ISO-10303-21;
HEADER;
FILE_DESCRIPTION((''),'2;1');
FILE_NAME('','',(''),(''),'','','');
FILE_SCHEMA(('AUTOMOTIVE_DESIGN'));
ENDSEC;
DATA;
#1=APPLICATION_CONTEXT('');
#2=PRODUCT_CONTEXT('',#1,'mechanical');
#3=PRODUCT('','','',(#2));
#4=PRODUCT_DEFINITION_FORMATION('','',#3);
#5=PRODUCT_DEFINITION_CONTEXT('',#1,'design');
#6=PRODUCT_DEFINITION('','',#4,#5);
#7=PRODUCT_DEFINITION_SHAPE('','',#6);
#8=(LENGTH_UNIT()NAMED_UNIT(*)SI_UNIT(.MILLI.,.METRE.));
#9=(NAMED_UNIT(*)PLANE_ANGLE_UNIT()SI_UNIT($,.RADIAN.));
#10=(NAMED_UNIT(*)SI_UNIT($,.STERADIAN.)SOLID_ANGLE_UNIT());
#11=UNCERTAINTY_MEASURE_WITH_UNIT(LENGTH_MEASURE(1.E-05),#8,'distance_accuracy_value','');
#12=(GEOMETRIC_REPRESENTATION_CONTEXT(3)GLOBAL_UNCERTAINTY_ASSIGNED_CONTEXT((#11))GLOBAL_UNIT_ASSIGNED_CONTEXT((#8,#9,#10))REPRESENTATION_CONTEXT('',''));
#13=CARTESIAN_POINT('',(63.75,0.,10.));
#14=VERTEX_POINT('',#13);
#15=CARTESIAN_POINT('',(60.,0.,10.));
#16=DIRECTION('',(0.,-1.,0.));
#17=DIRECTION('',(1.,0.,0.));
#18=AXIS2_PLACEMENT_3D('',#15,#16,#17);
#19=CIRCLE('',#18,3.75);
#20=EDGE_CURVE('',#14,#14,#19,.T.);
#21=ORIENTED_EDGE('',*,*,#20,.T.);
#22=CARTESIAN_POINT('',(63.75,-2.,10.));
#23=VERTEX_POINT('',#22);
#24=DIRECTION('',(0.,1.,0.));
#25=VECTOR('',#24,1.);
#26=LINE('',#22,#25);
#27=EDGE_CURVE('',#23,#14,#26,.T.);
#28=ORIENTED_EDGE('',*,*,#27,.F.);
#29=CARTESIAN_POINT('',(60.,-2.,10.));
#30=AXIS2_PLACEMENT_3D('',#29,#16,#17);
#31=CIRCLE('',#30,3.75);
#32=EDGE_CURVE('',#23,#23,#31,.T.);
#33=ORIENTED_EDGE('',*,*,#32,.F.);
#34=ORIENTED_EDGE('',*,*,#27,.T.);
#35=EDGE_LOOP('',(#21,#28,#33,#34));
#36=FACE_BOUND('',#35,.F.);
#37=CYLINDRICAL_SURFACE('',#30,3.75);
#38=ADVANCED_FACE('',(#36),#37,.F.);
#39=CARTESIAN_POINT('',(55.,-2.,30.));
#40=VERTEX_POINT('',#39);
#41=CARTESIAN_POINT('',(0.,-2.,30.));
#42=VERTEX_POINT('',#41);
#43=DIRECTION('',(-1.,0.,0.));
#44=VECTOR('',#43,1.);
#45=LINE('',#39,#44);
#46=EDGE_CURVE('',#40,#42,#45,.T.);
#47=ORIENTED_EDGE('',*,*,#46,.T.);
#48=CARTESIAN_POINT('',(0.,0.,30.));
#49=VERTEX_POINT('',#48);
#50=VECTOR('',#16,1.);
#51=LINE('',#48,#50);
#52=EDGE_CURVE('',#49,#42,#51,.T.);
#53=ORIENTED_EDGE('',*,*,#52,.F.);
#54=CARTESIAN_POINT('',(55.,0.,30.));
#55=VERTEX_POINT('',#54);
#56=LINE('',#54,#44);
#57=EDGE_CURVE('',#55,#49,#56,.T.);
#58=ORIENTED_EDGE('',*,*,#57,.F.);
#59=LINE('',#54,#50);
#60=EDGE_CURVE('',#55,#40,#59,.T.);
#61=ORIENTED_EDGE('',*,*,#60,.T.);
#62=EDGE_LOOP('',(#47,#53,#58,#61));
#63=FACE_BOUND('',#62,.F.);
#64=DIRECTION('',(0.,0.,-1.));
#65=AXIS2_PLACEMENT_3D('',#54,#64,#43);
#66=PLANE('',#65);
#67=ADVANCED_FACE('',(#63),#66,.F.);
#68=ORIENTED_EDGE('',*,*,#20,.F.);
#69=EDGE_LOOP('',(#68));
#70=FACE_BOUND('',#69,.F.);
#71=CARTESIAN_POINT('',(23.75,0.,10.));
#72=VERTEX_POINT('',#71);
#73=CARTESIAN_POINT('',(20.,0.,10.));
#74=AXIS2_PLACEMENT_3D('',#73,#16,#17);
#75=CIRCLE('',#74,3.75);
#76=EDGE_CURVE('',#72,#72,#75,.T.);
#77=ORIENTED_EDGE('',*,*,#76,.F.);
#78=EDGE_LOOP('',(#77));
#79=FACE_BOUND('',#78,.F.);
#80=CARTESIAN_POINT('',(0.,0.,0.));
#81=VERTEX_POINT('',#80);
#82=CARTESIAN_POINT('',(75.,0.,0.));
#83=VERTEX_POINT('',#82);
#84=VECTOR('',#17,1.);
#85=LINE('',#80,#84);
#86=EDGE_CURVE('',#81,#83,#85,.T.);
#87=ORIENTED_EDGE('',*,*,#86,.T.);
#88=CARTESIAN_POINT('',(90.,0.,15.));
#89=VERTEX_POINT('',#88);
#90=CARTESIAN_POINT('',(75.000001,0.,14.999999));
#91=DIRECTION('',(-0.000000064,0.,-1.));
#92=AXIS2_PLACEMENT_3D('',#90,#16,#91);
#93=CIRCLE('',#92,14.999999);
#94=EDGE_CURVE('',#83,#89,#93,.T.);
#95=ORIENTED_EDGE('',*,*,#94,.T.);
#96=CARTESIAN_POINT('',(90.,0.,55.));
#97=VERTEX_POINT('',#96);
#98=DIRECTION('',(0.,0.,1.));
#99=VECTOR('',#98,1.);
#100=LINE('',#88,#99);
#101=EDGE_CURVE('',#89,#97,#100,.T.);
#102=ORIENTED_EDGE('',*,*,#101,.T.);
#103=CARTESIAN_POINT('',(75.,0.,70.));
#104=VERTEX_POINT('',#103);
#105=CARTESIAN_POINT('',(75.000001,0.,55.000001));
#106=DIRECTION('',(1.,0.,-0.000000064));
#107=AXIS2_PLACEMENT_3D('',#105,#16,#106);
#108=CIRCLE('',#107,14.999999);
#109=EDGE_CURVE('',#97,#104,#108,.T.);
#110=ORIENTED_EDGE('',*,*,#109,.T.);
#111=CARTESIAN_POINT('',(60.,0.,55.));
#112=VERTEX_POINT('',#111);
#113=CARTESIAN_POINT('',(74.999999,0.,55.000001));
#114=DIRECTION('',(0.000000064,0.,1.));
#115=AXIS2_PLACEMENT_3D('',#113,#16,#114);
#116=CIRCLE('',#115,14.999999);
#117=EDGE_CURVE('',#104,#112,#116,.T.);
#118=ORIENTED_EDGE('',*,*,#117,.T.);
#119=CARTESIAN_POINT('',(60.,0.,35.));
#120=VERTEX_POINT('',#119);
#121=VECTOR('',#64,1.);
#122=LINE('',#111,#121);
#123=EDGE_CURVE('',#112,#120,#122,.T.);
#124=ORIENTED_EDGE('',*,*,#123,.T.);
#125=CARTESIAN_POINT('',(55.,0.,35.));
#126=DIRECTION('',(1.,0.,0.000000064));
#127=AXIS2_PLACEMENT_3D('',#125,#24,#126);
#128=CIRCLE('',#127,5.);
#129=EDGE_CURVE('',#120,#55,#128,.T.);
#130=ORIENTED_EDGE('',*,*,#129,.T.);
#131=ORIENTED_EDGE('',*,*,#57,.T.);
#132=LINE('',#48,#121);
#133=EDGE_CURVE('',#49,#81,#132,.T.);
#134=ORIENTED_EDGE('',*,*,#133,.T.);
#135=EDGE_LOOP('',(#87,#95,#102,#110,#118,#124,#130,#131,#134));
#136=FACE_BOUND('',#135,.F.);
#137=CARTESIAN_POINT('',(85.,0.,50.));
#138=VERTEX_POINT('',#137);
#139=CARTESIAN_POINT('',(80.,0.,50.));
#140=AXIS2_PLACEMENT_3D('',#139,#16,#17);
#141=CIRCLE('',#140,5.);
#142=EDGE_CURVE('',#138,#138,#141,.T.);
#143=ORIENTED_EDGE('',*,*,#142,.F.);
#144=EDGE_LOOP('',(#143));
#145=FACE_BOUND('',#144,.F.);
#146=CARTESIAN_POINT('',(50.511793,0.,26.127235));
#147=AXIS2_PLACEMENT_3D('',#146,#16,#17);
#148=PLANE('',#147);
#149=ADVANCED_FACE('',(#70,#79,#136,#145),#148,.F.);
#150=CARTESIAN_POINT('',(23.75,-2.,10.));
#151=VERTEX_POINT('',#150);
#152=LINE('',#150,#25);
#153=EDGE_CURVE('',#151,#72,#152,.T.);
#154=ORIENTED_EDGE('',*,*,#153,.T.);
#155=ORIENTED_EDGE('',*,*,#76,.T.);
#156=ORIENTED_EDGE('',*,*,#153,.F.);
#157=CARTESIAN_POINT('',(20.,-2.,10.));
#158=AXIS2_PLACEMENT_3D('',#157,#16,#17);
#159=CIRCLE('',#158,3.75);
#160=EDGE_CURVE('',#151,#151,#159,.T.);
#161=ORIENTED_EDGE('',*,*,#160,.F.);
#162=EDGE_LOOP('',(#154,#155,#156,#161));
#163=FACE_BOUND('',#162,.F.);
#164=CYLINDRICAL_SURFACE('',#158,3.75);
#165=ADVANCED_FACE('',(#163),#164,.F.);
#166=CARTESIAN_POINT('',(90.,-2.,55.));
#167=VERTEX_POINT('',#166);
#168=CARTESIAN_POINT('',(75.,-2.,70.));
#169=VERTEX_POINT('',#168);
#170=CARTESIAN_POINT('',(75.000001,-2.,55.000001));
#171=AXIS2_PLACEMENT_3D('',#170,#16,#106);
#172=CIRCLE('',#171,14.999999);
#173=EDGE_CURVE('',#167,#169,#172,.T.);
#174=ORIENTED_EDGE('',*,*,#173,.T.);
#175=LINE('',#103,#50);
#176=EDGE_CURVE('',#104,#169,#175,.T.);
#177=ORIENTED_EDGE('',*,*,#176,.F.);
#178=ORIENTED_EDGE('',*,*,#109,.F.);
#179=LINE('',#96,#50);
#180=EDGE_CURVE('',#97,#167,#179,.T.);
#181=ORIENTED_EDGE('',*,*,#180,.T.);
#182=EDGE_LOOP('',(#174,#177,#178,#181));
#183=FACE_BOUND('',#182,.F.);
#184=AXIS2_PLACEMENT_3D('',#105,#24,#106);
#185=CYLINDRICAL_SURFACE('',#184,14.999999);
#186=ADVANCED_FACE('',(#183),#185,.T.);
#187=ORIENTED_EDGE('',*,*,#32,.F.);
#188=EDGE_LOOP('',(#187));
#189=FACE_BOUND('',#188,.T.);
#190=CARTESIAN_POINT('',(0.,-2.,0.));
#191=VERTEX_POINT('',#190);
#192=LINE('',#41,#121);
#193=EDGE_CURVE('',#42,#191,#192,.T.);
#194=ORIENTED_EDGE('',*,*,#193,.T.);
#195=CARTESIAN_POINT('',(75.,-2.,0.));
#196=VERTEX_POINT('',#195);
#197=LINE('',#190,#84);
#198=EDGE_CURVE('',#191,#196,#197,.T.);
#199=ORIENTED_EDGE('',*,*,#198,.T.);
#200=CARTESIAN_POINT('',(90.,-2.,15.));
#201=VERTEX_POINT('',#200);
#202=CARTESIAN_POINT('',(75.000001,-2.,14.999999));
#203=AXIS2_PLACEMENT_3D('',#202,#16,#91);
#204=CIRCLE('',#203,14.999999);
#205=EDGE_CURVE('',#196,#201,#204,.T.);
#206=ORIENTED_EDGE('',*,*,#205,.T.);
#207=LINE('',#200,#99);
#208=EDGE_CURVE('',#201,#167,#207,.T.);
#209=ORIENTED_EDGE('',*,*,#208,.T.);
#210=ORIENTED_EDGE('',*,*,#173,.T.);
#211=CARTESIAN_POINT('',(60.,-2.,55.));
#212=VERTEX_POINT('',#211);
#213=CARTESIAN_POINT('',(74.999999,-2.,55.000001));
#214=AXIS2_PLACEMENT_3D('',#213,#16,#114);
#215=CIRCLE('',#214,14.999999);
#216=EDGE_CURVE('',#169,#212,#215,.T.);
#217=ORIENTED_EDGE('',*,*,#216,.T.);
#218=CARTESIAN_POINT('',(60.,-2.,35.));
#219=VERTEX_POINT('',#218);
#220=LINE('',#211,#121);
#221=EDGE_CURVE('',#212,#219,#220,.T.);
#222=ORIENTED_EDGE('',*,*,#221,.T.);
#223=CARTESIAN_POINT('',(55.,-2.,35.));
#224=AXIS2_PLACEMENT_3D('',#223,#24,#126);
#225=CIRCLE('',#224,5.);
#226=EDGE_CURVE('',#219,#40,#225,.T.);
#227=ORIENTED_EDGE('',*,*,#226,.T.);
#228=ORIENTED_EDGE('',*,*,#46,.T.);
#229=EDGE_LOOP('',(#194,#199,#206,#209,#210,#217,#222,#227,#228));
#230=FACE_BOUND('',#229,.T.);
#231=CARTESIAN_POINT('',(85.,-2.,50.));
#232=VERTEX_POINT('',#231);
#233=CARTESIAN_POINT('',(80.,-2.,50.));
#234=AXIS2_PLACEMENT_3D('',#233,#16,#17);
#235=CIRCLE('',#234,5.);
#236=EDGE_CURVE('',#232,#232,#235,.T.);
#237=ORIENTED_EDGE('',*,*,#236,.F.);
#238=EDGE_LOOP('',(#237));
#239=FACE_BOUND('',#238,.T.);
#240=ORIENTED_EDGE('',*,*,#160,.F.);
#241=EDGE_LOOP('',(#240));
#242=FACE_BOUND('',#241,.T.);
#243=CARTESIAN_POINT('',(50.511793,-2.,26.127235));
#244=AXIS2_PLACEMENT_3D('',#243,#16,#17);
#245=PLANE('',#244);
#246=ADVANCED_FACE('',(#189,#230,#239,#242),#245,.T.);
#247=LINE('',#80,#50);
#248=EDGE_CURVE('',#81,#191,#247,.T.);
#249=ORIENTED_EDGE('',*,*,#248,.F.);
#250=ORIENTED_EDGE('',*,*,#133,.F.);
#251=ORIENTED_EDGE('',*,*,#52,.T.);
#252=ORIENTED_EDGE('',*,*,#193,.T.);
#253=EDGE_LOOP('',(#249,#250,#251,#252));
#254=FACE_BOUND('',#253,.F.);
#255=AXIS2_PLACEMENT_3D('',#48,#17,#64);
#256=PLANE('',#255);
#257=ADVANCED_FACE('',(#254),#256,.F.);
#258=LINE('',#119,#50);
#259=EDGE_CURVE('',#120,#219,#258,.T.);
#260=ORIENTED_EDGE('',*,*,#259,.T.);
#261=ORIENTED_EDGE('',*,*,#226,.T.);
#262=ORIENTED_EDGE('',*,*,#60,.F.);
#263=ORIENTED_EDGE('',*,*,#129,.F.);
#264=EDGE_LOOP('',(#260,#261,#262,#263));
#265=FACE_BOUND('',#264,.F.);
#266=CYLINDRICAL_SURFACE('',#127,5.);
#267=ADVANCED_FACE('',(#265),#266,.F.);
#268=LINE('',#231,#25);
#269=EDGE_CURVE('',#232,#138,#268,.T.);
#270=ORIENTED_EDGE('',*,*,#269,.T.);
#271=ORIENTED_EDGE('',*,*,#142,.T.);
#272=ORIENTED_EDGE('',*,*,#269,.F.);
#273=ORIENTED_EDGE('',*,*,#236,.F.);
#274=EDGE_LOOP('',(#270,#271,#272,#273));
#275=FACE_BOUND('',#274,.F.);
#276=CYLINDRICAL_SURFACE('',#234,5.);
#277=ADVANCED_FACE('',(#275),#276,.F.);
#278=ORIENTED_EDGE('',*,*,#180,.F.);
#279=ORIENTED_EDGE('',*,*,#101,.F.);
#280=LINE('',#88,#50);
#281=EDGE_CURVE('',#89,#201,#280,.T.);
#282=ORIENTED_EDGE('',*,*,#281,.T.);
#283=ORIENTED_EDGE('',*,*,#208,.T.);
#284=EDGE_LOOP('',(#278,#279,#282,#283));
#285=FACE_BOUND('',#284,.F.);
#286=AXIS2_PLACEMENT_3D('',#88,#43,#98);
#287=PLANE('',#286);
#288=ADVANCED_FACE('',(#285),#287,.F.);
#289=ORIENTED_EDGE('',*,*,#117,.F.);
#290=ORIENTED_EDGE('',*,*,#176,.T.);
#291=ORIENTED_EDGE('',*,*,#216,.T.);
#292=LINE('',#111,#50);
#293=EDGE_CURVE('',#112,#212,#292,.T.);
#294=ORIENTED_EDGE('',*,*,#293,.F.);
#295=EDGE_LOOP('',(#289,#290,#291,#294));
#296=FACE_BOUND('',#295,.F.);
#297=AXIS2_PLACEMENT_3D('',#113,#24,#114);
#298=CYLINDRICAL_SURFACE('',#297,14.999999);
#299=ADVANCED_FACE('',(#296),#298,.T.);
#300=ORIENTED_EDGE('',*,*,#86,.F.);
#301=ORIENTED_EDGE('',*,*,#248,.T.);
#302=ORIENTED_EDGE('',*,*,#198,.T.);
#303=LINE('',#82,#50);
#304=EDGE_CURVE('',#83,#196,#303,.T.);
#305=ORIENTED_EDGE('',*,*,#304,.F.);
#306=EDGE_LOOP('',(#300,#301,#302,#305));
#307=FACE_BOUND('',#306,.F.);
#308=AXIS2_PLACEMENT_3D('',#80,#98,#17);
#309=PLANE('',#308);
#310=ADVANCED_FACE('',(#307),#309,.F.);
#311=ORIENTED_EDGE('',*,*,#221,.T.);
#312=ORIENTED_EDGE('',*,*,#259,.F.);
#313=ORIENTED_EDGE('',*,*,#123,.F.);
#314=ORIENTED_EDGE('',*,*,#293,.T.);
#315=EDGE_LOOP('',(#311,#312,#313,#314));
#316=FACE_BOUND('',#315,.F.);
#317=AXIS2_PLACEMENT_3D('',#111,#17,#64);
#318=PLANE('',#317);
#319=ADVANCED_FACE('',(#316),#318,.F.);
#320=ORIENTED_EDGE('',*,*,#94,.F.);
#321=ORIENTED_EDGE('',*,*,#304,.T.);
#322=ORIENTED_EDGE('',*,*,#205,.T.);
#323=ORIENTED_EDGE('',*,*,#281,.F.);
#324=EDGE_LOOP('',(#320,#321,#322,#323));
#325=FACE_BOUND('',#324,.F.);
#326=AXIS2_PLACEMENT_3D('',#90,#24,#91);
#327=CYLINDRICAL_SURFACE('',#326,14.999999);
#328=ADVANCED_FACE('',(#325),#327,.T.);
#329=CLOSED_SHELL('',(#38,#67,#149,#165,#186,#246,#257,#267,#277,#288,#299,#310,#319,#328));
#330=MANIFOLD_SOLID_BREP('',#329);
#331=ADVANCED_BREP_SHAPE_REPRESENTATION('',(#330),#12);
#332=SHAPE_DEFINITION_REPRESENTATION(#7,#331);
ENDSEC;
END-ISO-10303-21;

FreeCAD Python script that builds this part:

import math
import FreeCAD as App
import Part
import Sketcher

doc = App.newDocument("Part")
body = doc.addObject("PartDesign::Body", "Body")

sketch1 = body.newObject("Sketcher::SketchObject", "Sketch")
sketch1.AttachmentSupport = (doc.getObject("XZ_Plane"), [""])
sketch1.MapMode = "FlatFace"
sketch1.addGeometry(Part.LineSegment(App.Vector(0, 30, 0), App.Vector(0, 0, 0)), False)
sketch1.addGeometry(Part.LineSegment(App.Vector(0, 0, 0), App.Vector(75, 0, 0)), False)
sketch1.addGeometry(Part.ArcOfCircle(Part.Circle(App.Vector(75.000001, 14.999999, 0), App.Vector(0, 0, 1), 14.999999), math.radians(-90.000004), math.radians(0.000004)), False)
sketch1.addGeometry(Part.LineSegment(App.Vector(90, 15, 0), App.Vector(90, 55, 0)), False)
sketch1.addGeometry(Part.ArcOfCircle(Part.Circle(App.Vector(75.000001, 55.000001, 0), App.Vector(0, 0, 1), 14.999999), math.radians(-0.000004), math.radians(90.000004)), False)
sketch1.addGeometry(Part.ArcOfCircle(Part.Circle(App.Vector(74.999999, 55.000001, 0), App.Vector(0, 0, 1), 14.999999), math.radians(89.999996), math.radians(180.000004)), False)
sketch1.addGeometry(Part.LineSegment(App.Vector(60, 55, 0), App.Vector(60, 35, 0)), False)
sketch1.addGeometry(Part.ArcOfCircle(Part.Circle(App.Vector(55, 35, 0), App.Vector(0, 0, 1), 5), math.radians(-90.000004), math.radians(0.000004)), False)
sketch1.addGeometry(Part.LineSegment(App.Vector(55, 30, 0), App.Vector(0, 30, 0)), False)
sketch1.addConstraint(Sketcher.Constraint("Coincident", 0, 2, 1, 1))
sketch1.addConstraint(Sketcher.Constraint("Tangent", 1, 2, 2, 1))
sketch1.addConstraint(Sketcher.Constraint("Tangent", 2, 2, 3, 1))
sketch1.addConstraint(Sketcher.Constraint("Tangent", 3, 2, 4, 1))
sketch1.addConstraint(Sketcher.Constraint("Tangent", 4, 2, 5, 1))
sketch1.addConstraint(Sketcher.Constraint("Tangent", 5, 2, 6, 1))
sketch1.addConstraint(Sketcher.Constraint("Tangent", 6, 2, 7, 2))
sketch1.addConstraint(Sketcher.Constraint("Tangent", 7, 1, 8, 1))
sketch1.addConstraint(Sketcher.Constraint("Coincident", 8, 2, 0, 1))
sketch1.addConstraint(Sketcher.Constraint("Vertical", 0))
sketch1.addConstraint(Sketcher.Constraint("Horizontal", 1))
sketch1.addConstraint(Sketcher.Constraint("Vertical", 3))
sketch1.addConstraint(Sketcher.Constraint("Vertical", 6))
sketch1.addConstraint(Sketcher.Constraint("Horizontal", 8))
sketch1.addConstraint(Sketcher.Constraint("Coincident", 0, 2, -1, 1))
sketch1.addConstraint(Sketcher.Constraint("Equal", 2, 4))
sketch1.addConstraint(Sketcher.Constraint("Equal", 4, 5))
sketch1.addConstraint(Sketcher.Constraint("Vertical", 1, 2, 4, 2))
sketch1.addConstraint(Sketcher.Constraint("Radius", 2, 14.999999))
sketch1.addConstraint(Sketcher.Constraint("Radius", 7, 5.0))
sketch1.addConstraint(Sketcher.Constraint("DistanceX", 1, 1, 1, 2, 75.0))
sketch1.addConstraint(Sketcher.Constraint("DistanceY", 0, 2, 0, 1, 30.0))
sketch1.addConstraint(Sketcher.Constraint("DistanceY", 3, 1, 3, 2, 40.0))
pad1 = body.newObject("PartDesign::Pad", "Pad")
pad1.Profile = sketch1
pad1.Length = 2

sketch2 = body.newObject("Sketcher::SketchObject", "Sketch001")
sketch2.AttachmentSupport = (doc.getObject("XZ_Plane"), [""])
sketch2.MapMode = "FlatFace"
sketch2.AttachmentOffset = App.Placement(App.Vector(0, 0, 2), App.Rotation())
sketch2.addGeometry(Part.Circle(App.Vector(20, 10, 0), App.Vector(0, 0, 1), 3.75), False)
sketch2.addGeometry(Part.Circle(App.Vector(60, 10, 0), App.Vector(0, 0, 1), 3.75), False)
sketch2.addGeometry(Part.Circle(App.Vector(80, 50, 0), App.Vector(0, 0, 1), 5), False)
sketch2.addConstraint(Sketcher.Constraint("Equal", 0, 1))
sketch2.addConstraint(Sketcher.Constraint("Horizontal", 0, 3, 1, 3))
sketch2.addConstraint(Sketcher.Constraint("Diameter", 2, 10.0))
sketch2.addConstraint(Sketcher.Constraint("Diameter", 0, 7.5))
sketch2.addConstraint(Sketcher.Constraint("DistanceX", -1, 1, 0, 3, 20.0))
sketch2.addConstraint(Sketcher.Constraint("DistanceY", -1, 1, 0, 3, 10.0))
sketch2.addConstraint(Sketcher.Constraint("DistanceX", -1, 1, 1, 3, 60.0))
sketch2.addConstraint(Sketcher.Constraint("DistanceX", -1, 1, 2, 3, 80.0))
sketch2.addConstraint(Sketcher.Constraint("DistanceY", -1, 1, 2, 3, 50.0))
pocket1 = body.newObject("PartDesign::Pocket", "Pocket")
pocket1.Profile = sketch2
pocket1.Length = 25

doc.recompute()
